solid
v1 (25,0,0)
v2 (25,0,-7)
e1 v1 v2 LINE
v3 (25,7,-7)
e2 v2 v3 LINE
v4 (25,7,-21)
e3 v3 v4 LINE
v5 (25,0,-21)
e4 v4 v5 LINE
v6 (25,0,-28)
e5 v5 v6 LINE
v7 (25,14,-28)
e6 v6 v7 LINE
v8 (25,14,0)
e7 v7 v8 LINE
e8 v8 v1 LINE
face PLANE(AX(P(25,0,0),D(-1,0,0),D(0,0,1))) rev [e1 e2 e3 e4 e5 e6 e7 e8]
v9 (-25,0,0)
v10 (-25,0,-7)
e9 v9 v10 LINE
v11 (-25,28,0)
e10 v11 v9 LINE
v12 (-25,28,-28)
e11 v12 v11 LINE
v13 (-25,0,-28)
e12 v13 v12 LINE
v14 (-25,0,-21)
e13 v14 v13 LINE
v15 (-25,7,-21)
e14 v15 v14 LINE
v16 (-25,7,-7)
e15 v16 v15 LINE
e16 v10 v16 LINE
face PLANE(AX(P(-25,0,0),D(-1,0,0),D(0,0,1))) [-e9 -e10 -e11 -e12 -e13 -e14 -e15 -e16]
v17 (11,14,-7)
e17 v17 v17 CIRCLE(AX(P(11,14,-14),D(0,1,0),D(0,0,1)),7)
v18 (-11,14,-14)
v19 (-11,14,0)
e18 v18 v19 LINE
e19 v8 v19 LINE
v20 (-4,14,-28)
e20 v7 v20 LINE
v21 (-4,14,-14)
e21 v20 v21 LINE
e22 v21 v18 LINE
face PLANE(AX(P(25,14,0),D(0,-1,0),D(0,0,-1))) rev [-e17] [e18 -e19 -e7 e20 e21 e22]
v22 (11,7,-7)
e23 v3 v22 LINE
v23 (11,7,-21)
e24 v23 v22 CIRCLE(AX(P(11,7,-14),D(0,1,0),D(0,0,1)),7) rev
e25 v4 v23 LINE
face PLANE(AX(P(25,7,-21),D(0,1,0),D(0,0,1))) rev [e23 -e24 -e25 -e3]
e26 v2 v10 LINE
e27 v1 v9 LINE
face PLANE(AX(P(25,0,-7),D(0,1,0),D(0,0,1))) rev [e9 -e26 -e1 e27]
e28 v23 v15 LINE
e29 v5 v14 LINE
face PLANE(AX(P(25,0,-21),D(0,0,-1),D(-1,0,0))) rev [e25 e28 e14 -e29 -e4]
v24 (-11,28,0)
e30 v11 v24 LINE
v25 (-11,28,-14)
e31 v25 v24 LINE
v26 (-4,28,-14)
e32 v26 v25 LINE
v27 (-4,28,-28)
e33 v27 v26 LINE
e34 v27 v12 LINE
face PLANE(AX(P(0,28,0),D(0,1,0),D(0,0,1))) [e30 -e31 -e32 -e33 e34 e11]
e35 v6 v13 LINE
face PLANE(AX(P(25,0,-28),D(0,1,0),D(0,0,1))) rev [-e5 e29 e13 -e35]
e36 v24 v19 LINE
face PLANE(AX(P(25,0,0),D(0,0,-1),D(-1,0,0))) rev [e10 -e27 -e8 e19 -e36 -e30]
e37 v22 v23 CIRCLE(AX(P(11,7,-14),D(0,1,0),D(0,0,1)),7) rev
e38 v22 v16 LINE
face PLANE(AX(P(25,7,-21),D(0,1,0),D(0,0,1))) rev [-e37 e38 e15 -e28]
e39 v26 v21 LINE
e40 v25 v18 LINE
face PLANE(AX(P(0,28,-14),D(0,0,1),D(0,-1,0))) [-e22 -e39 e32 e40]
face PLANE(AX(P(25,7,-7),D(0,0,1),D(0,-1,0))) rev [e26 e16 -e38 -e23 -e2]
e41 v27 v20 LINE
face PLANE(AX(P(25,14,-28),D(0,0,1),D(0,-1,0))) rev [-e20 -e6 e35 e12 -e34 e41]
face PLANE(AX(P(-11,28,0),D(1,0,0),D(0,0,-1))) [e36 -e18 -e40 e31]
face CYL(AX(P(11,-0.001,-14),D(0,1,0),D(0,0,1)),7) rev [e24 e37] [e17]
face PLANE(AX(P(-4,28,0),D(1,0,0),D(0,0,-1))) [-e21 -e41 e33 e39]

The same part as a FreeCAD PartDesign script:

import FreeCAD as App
import Part
import Sketcher

doc = App.newDocument("Part")
params = doc.addObject("Spreadsheet::Sheet", "Params")
for row, (alias, value) in enumerate([
    ("sketch1_width", "14 mm"),
    ("sketch1_width2", "7 mm"),
    ("pad1_length", "50 mm"),
    ("sketch2_diameter", "14 mm"),
    ("sketch3_width", "21 mm"),
    ("sketch3_width2", "14 mm"),
    ("pad2_length", "14 mm"),
], start=1):
    params.set(f"A{row}", alias)
    params.set(f"B{row}", "=" + value)
    params.setAlias(f"B{row}", alias)

body = doc.addObject("PartDesign::Body", "Body")

# Sketch on YZ plane
sketch1 = doc.addObject("Sketcher::SketchObject", "Sketch")
body.addObject(sketch1)
sketch1.AttachmentSupport = (doc.YZ_Plane, [""])
sketch1.MapMode = "FlatFace"
sketch1.addGeometry(Part.LineSegment(App.Vector(14, 0, 0), App.Vector(0, 0, 0)), False)
sketch1.addGeometry(Part.LineSegment(App.Vector(0, 0, 0), App.Vector(0, -7, 0)), False)
sketch1.addGeometry(Part.LineSegment(App.Vector(0, -7, 0), App.Vector(7, -7, 0)), False)
sketch1.addGeometry(Part.LineSegment(App.Vector(7, -7, 0), App.Vector(7, -21, 0)), False)
sketch1.addGeometry(Part.LineSegment(App.Vector(7, -21, 0), App.Vector(0, -21, 0)), False)
sketch1.addGeometry(Part.LineSegment(App.Vector(0, -21, 0), App.Vector(0, -28, 0)), False)
sketch1.addGeometry(Part.LineSegment(App.Vector(0, -28, 0), App.Vector(14, -28, 0)), False)
sketch1.addGeometry(Part.LineSegment(App.Vector(14, -28, 0), App.Vector(14, 0, 0)), False)
sketch1.addConstraint(Sketcher.Constraint("Coincident", 0, 2, 1, 1))
sketch1.addConstraint(Sketcher.Constraint("Coincident", 1, 2, 2, 1))
sketch1.addConstraint(Sketcher.Constraint("Coincident", 2, 2, 3, 1))
sketch1.addConstraint(Sketcher.Constraint("Coincident", 3, 2, 4, 1))
sketch1.addConstraint(Sketcher.Constraint("Coincident", 4, 2, 5, 1))
sketch1.addConstraint(Sketcher.Constraint("Coincident", 5, 2, 6, 1))
sketch1.addConstraint(Sketcher.Constraint("Coincident", 6, 2, 7, 1))
sketch1.addConstraint(Sketcher.Constraint("Coincident", 7, 2, 0, 1))
sketch1.addConstraint(Sketcher.Constraint("Horizontal", 0))
sketch1.addConstraint(Sketcher.Constraint("Vertical", 1))
sketch1.addConstraint(Sketcher.Constraint("Horizontal", 2))
sketch1.addConstraint(Sketcher.Constraint("Vertical", 3))
sketch1.addConstraint(Sketcher.Constraint("Horizontal", 4))
sketch1.addConstraint(Sketcher.Constraint("Vertical", 5))
sketch1.addConstraint(Sketcher.Constraint("Horizontal", 6))
sketch1.addConstraint(Sketcher.Constraint("Vertical", 7))
sketch1.addConstraint(Sketcher.Constraint("Coincident", 0, 2, -1, 1))
sketch1.addConstraint(Sketcher.Constraint("PointOnObject", 4, 2, -2))
sketch1.addConstraint(Sketcher.Constraint("Equal", 4, 1))
sketch1.addConstraint(Sketcher.Constraint("Equal", 6, 3))
sketch1.addConstraint(Sketcher.Constraint("Equal", 1, 5))
sketch1.addConstraint(Sketcher.Constraint("DistanceX", 0, 2, 0, 1, 14.0))
sketch1.addConstraint(Sketcher.Constraint("DistanceX", 2, 1, 2, 2, 7.0))
sketch1.setExpression("Constraints[21]", "Params.sketch1_width")
sketch1.setExpression("Constraints[22]", "Params.sketch1_width2")
pad1 = doc.addObject("PartDesign::Pad", "Pad")
body.addObject(pad1)
pad1.Profile = sketch1
pad1.setExpression("Length", "Params.pad1_length")
pad1.Midplane = True

# Sketch on XZ plane
sketch2 = doc.addObject("Sketcher::SketchObject", "Sketch001")
body.addObject(sketch2)
sketch2.AttachmentSupport = (doc.XZ_Plane, [""])
sketch2.MapMode = "FlatFace"
sketch2.AttachmentOffset = App.Placement(App.Vector(0, 0, -14), App.Rotation())
sketch2.addGeometry(Part.Circle(App.Vector(11, -14, 0), App.Vector(0, 0, 1), 7), False)
sketch2.addConstraint(Sketcher.Constraint("Diameter", 0, 14.0))
sketch2.addConstraint(Sketcher.Constraint("DistanceX", -1, 1, 0, 3, 11.0))
sketch2.addConstraint(Sketcher.Constraint("DistanceY", 0, 3, -1, 1, 14.0))
sketch2.setExpression("Constraints[0]", "Params.sketch2_diameter")
pocket1 = doc.addObject("PartDesign::Pocket", "Pocket")
body.addObject(pocket1)
pocket1.Profile = sketch2
pocket1.Type = "UpToFirst"
pocket1.Reversed = True

# Sketch on XZ plane
sketch3 = doc.addObject("Sketcher::SketchObject", "Sketch002")
body.addObject(sketch3)
sketch3.AttachmentSupport = (doc.XZ_Plane, [""])
sketch3.MapMode = "FlatFace"
sketch3.AttachmentOffset = App.Placement(App.Vector(0, 0, -14), App.Rotation())
sketch3.addGeometry(Part.LineSegment(App.Vector(-4, -14, 0), App.Vector(-4, -28, 0)), False)
sketch3.addGeometry(Part.LineSegment(App.Vector(-4, -28, 0), App.Vector(-25, -28, 0)), False)
sketch3.addGeometry(Part.LineSegment(App.Vector(-25, -28, 0), App.Vector(-25, 0, 0)), False)
sketch3.addGeometry(Part.LineSegment(App.Vector(-25, 0, 0), App.Vector(-11, 0, 0)), False)
sketch3.addGeometry(Part.LineSegment(App.Vector(-11, 0, 0), App.Vector(-11, -14, 0)), False)
sketch3.addGeometry(Part.LineSegment(App.Vector(-11, -14, 0), App.Vector(-4, -14, 0)), False)
sketch3.addConstraint(Sketcher.Constraint("Coincident", 0, 2, 1, 1))
sketch3.addConstraint(Sketcher.Constraint("Coincident", 1, 2, 2, 1))
sketch3.addConstraint(Sketcher.Constraint("Coincident", 2, 2, 3, 1))
sketch3.addConstraint(Sketcher.Constraint("Coincident", 3, 2, 4, 1))
sketch3.addConstraint(Sketcher.Constraint("Coincident", 4, 2, 5, 1))
sketch3.addConstraint(Sketcher.Constraint("Coincident", 5, 2, 0, 1))
sketch3.addConstraint(Sketcher.Constraint("Vertical", 0))
sketch3.addConstraint(Sketcher.Constraint("Horizontal", 1))
sketch3.addConstraint(Sketcher.Constraint("Vertical", 2))
sketch3.addConstraint(Sketcher.Constraint("Horizontal", 3))
sketch3.addConstraint(Sketcher.Constraint("Vertical", 4))
sketch3.addConstraint(Sketcher.Constraint("Horizontal", 5))
sketch3.addConstraint(Sketcher.Constraint("PointOnObject", 2, 2, -1))
sketch3.addConstraint(Sketcher.Constraint("Equal", 3, 0))
sketch3.addConstraint(Sketcher.Constraint("Equal", 0, 4))
sketch3.addConstraint(Sketcher.Constraint("DistanceX", 1, 2, 1, 1, 21.0))
sketch3.addConstraint(Sketcher.Constraint("DistanceX", 3, 1, 3, 2, 14.0))
sketch3.addConstraint(Sketcher.Constraint("DistanceX", 0, 2, -1, 1, 4.0))
sketch3.setExpression("Constraints[15]", "Params.sketch3_width")
sketch3.setExpression("Constraints[16]", "Params.sketch3_width2")
pad2 = doc.addObject("PartDesign::Pad", "Pad001")
body.addObject(pad2)
pad2.Profile = sketch3
pad2.setExpression("Length", "Params.pad2_length")
pad2.Reversed = True

doc.recompute()
